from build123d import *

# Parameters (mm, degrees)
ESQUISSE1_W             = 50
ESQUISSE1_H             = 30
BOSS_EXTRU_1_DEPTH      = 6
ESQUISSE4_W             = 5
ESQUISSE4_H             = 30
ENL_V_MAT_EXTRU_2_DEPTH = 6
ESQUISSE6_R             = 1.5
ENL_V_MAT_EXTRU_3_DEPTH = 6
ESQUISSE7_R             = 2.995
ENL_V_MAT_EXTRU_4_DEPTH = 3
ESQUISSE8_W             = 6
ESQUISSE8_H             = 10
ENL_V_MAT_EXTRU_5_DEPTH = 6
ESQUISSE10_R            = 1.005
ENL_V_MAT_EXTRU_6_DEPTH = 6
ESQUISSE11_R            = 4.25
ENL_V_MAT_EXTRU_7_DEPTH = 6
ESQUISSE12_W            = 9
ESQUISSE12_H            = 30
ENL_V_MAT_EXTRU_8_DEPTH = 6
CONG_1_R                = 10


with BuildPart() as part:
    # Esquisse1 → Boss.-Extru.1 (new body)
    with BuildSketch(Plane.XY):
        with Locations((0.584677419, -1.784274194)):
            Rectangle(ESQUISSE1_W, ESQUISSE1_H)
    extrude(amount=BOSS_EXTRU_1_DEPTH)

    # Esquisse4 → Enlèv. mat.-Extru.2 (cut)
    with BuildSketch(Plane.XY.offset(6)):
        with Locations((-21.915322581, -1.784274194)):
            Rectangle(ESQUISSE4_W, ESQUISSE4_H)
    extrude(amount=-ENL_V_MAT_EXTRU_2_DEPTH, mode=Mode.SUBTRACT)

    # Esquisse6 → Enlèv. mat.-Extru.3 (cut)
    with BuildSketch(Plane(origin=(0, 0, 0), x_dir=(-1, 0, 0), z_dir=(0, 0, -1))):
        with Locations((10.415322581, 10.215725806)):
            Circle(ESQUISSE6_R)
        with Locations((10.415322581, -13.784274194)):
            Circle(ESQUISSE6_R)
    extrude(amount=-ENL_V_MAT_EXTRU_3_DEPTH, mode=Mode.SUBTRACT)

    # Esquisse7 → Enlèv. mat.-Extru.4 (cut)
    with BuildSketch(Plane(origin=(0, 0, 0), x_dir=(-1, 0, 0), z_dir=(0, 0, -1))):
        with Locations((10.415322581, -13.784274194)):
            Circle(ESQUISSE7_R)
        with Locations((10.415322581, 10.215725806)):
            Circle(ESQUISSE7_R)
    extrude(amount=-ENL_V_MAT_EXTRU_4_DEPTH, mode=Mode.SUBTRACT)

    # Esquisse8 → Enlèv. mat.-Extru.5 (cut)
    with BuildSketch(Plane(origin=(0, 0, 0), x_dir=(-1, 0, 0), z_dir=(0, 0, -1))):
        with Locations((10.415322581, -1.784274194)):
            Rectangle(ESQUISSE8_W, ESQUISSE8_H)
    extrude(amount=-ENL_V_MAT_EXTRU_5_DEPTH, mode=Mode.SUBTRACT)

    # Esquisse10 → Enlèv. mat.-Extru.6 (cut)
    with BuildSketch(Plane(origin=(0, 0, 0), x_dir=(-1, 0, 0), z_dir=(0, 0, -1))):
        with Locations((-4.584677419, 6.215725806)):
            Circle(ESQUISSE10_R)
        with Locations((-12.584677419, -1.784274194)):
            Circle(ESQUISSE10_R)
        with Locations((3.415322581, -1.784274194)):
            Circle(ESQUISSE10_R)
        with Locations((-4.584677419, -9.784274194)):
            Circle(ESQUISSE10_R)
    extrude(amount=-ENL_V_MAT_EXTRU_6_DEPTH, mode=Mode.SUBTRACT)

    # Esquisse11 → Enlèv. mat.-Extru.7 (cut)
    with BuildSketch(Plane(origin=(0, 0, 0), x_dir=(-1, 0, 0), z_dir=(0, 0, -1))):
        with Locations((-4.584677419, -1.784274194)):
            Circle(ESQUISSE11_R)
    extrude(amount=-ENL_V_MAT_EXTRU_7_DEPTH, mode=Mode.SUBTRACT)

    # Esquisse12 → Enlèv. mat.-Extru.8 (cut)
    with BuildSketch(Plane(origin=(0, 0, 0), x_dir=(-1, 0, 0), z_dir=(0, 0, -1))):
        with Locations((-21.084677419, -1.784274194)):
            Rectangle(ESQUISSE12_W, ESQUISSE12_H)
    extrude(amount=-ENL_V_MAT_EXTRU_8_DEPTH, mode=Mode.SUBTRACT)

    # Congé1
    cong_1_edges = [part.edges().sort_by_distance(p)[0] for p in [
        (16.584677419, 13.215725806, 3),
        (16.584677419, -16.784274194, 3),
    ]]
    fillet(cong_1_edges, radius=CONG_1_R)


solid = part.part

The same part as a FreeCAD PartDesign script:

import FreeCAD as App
import Part
import Sketcher
from FreeCAD import Vector


def edges_at(feature, points):
    """Names of the edges that pass closest to the given points."""
    edges = feature.Shape.Edges
    near = lambda p: min(range(len(edges)), key=lambda i: edges[i].distToShape(Part.Vertex(*p))[0])
    return sorted({f"Edge{near(p) + 1}" for p in points})

doc = App.newDocument("Part")
params = doc.addObject("Spreadsheet::Sheet", "Params")
for row, (alias, value) in enumerate([
    ("sketch1_width", "50 mm"),
    ("sketch1_height", "30 mm"),
    ("pad1_length", "6 mm"),
    ("sketch2_width", "5 mm"),
    ("sketch2_height", "30 mm"),
    ("pocket1_length", "6 mm"),
    ("sketch3_diameter", "3 mm"),
    ("pocket2_length", "6 mm"),
    ("sketch4_diameter", "5.99 mm"),
    ("pocket3_length", "3 mm"),
    ("sketch5_width", "6 mm"),
    ("sketch5_height", "10 mm"),
    ("pocket4_length", "6 mm"),
    ("sketch6_diameter", "2.01 mm"),
    ("pocket5_length", "6 mm"),
    ("sketch7_diameter", "8.5 mm"),
    ("pocket6_length", "6 mm"),
    ("sketch8_width", "9 mm"),
    ("sketch8_height", "30 mm"),
    ("pocket7_length", "6 mm"),
    ("fillet_radius", "10 mm"),
], start=1):
    params.set(f"A{row}", alias)
    params.set(f"B{row}", "=" + value)
    params.setAlias(f"B{row}", alias)

body = doc.addObject("PartDesign::Body", "Body")

sketch1 = body.newObject("Sketcher::SketchObject", "Sketch")
sketch1.AttachmentSupport = (doc.getObject("XY_Plane"), [""])
sketch1.MapMode = "FlatFace"
sketch1.addGeometry(Part.LineSegment(Vector(-24.415323, 13.215726, 0), Vector(-24.415323, -16.784274, 0)), False)
sketch1.addGeometry(Part.LineSegment(Vector(-24.415323, -16.784274, 0), Vector(25.584677, -16.784274, 0)), False)
sketch1.addGeometry(Part.LineSegment(Vector(25.584677, -16.784274, 0), Vector(25.584677, 13.215726, 0)), False)
sketch1.addGeometry(Part.LineSegment(Vector(25.584677, 13.215726, 0), Vector(-24.415323, 13.215726, 0)), False)
sketch1.addConstraint(Sketcher.Constraint("Coincident", 0, 2, 1, 1))
sketch1.addConstraint(Sketcher.Constraint("Coincident", 1, 2, 2, 1))
sketch1.addConstraint(Sketcher.Constraint("Coincident", 2, 2, 3, 1))
sketch1.addConstraint(Sketcher.Constraint("Coincident", 3, 2, 0, 1))
sketch1.addConstraint(Sketcher.Constraint("Vertical", 0))
sketch1.addConstraint(Sketcher.Constraint("Horizontal", 1))
sketch1.addConstraint(Sketcher.Constraint("Vertical", 2))
sketch1.addConstraint(Sketcher.Constraint("Horizontal", 3))
sketch1.addConstraint(Sketcher.Constraint("DistanceX", 1, 1, 1, 2, 50.0))
sketch1.addConstraint(Sketcher.Constraint("DistanceY", 0, 2, 0, 1, 30.0))
sketch1.addConstraint(Sketcher.Constraint("DistanceX", 0, 2, -1, 1, 24.415323))
sketch1.addConstraint(Sketcher.Constraint("DistanceY", 0, 2, -1, 1, 16.784274))
sketch1.setExpression("Constraints[8]", "Params.sketch1_width")
sketch1.setExpression("Constraints[9]", "Params.sketch1_height")
pad1 = body.newObject("PartDesign::Pad", "Pad")
pad1.Profile = sketch1
pad1.setExpression("Length", "Params.pad1_length")

sketch2 = body.newObject("Sketcher::SketchObject", "Sketch001")
sketch2.AttachmentSupport = (doc.getObject("XY_Plane"), [""])
sketch2.MapMode = "FlatFace"
sketch2.AttachmentOffset = App.Placement(Vector(0, 0, 6), App.Rotation())
sketch2.addGeometry(Part.LineSegment(Vector(-24.415323, 13.215726, 0), Vector(-24.415323, -16.784274, 0)), False)
sketch2.addGeometry(Part.LineSegment(Vector(-24.415323, -16.784274, 0), Vector(-19.415323, -16.784274, 0)), False)
sketch2.addGeometry(Part.LineSegment(Vector(-19.415323, -16.784274, 0), Vector(-19.415323, 13.215726, 0)), False)
sketch2.addGeometry(Part.LineSegment(Vector(-19.415323, 13.215726, 0), Vector(-24.415323, 13.215726, 0)), False)
sketch2.addConstraint(Sketcher.Constraint("Coincident", 0, 2, 1, 1))
sketch2.addConstraint(Sketcher.Constraint("Coincident", 1, 2, 2, 1))
sketch2.addConstraint(Sketcher.Constraint("Coincident", 2, 2, 3, 1))
sketch2.addConstraint(Sketcher.Constraint("Coincident", 3, 2, 0, 1))
sketch2.addConstraint(Sketcher.Constraint("Vertical", 0))
sketch2.addConstraint(Sketcher.Constraint("Horizontal", 1))
sketch2.addConstraint(Sketcher.Constraint("Vertical", 2))
sketch2.addConstraint(Sketcher.Constraint("Horizontal", 3))
sketch2.addConstraint(Sketcher.Constraint("DistanceX", 1, 1, 1, 2, 5.0))
sketch2.addConstraint(Sketcher.Constraint("DistanceY", 0, 2, 0, 1, 30.0))
sketch2.addConstraint(Sketcher.Constraint("DistanceX", 0, 2, -1, 1, 24.415323))
sketch2.addConstraint(Sketcher.Constraint("DistanceY", 0, 2, -1, 1, 16.784274))
sketch2.setExpression("Constraints[8]", "Params.sketch2_width")
sketch2.setExpression("Constraints[9]", "Params.sketch2_height")
pocket1 = body.newObject("PartDesign::Pocket", "Pocket")
pocket1.Profile = sketch2
pocket1.setExpression("Length", "Params.pocket1_length")

sketch3 = body.newObject("Sketcher::SketchObject", "Sketch002")
sketch3.AttachmentSupport = (doc.getObject("XY_Plane"), [""])
sketch3.MapMode = "FlatFace"
sketch3.addGeometry(Part.Circle(Vector(-10.415323, 10.215726, 0), Vector(0, 0, 1), 1.5), False)
sketch3.addGeometry(Part.Circle(Vector(-10.415323, -13.784274, 0), Vector(0, 0, 1), 1.5), False)
sketch3.addConstraint(Sketcher.Constraint("Equal", 0, 1))
sketch3.addConstraint(Sketcher.Constraint("Vertical", 0, 3, 1, 3))
sketch3.addConstraint(Sketcher.Constraint("Diameter", 0, 3.0))
sketch3.addConstraint(Sketcher.Constraint("DistanceY", 1, 3, 0, 3, 24.0))
sketch3.addConstraint(Sketcher.Constraint("DistanceX", 0, 3, -1, 1, 10.415323))
sketch3.addConstraint(Sketcher.Constraint("DistanceY", -1, 1, 0, 3, 10.215726))
sketch3.setExpression("Constraints[2]", "Params.sketch3_diameter")
pocket2 = body.newObject("PartDesign::Pocket", "Pocket001")
pocket2.Profile = sketch3
pocket2.setExpression("Length", "Params.pocket2_length")
pocket2.Reversed = True

sketch4 = body.newObject("Sketcher::SketchObject", "Sketch003")
sketch4.AttachmentSupport = (doc.getObject("XY_Plane"), [""])
sketch4.MapMode = "FlatFace"
sketch4.addGeometry(Part.Circle(Vector(-10.415323, -13.784274, 0), Vector(0, 0, 1), 2.995), False)
sketch4.addGeometry(Part.Circle(Vector(-10.415323, 10.215726, 0), Vector(0, 0, 1), 2.995), False)
sketch4.addConstraint(Sketcher.Constraint("Equal", 0, 1))
sketch4.addConstraint(Sketcher.Constraint("Vertical", 0, 3, 1, 3))
sketch4.addConstraint(Sketcher.Constraint("Diameter", 0, 5.99))
sketch4.addConstraint(Sketcher.Constraint("DistanceY", 0, 3, 1, 3, 24.0))
sketch4.addConstraint(Sketcher.Constraint("DistanceX", 0, 3, -1, 1, 10.415323))
sketch4.addConstraint(Sketcher.Constraint("DistanceY", 0, 3, -1, 1, 13.784274))
sketch4.setExpression("Constraints[2]", "Params.sketch4_diameter")
pocket3 = body.newObject("PartDesign::Pocket", "Pocket002")
pocket3.Profile = sketch4
pocket3.setExpression("Length", "Params.pocket3_length")
pocket3.Reversed = True

sketch5 = body.newObject("Sketcher::SketchObject", "Sketch004")
sketch5.AttachmentSupport = (doc.getObject("XY_Plane"), [""])
sketch5.MapMode = "FlatFace"
sketch5.addGeometry(Part.LineSegment(Vector(-7.415323, 3.215726, 0), Vector(-7.415323, -6.784274, 0)), False)
sketch5.addGeometry(Part.LineSegment(Vector(-7.415323, -6.784274, 0), Vector(-13.415323, -6.784274, 0)), False)
sketch5.addGeometry(Part.LineSegment(Vector(-13.415323, -6.784274, 0), Vector(-13.415323, 3.215726, 0)), False)
sketch5.addGeometry(Part.LineSegment(Vector(-13.415323, 3.215726, 0), Vector(-7.415323, 3.215726, 0)), False)
sketch5.addConstraint(Sketcher.Constraint("Coincident", 0, 2, 1, 1))
sketch5.addConstraint(Sketcher.Constraint("Coincident", 1, 2, 2, 1))
sketch5.addConstraint(Sketcher.Constraint("Coincident", 2, 2, 3, 1))
sketch5.addConstraint(Sketcher.Constraint("Coincident", 3, 2, 0, 1))
sketch5.addConstraint(Sketcher.Constraint("Vertical", 0))
sketch5.addConstraint(Sketcher.Constraint("Horizontal", 1))
sketch5.addConstraint(Sketcher.Constraint("Vertical", 2))
sketch5.addConstraint(Sketcher.Constraint("Horizontal", 3))
sketch5.addConstraint(Sketcher.Constraint("DistanceX", 1, 2, 1, 1, 6.0))
sketch5.addConstraint(Sketcher.Constraint("DistanceY", 0, 2, 0, 1, 10.0))
sketch5.addConstraint(Sketcher.Constraint("DistanceX", 0, 2, -1, 1, 7.415323))
sketch5.addConstraint(Sketcher.Constraint("DistanceY", 0, 2, -1, 1, 6.784274))
sketch5.setExpression("Constraints[8]", "Params.sketch5_width")
sketch5.setExpression("Constraints[9]", "Params.sketch5_height")
pocket4 = body.newObject("PartDesign::Pocket", "Pocket003")
pocket4.Profile = sketch5
pocket4.setExpression("Length", "Params.pocket4_length")
pocket4.Reversed = True

sketch6 = body.newObject("Sketcher::SketchObject", "Sketch005")
sketch6.AttachmentSupport = (doc.getObject("XY_Plane"), [""])
sketch6.MapMode = "FlatFace"
sketch6.addGeometry(Part.Circle(Vector(4.584677, 6.215726, 0), Vector(0, 0, 1), 1.005), False)
sketch6.addGeometry(Part.Circle(Vector(12.584677, -1.784274, 0), Vector(0, 0, 1), 1.005), False)
sketch6.addGeometry(Part.Circle(Vector(-3.415323, -1.784274, 0), Vector(0, 0, 1), 1.005), False)
sketch6.addGeometry(Part.Circle(Vector(4.584677, -9.784274, 0), Vector(0, 0, 1), 1.005), False)
sketch6.addConstraint(Sketcher.Constraint("Equal", 0, 1))
sketch6.addConstraint(Sketcher.Constraint("Equal", 1, 2))
sketch6.addConstraint(Sketcher.Constraint("Equal", 2, 3))
sketch6.addConstraint(Sketcher.Constraint("Horizontal", 1, 3, 2, 3))
sketch6.addConstraint(Sketcher.Constraint("Vertical", 0, 3, 3, 3))
sketch6.addConstraint(Sketcher.Constraint("Diameter", 0, 2.01))
sketch6.addConstraint(Sketcher.Constraint("DistanceX", 0, 3, 1, 3, 8.0))
sketch6.addConstraint(Sketcher.Constraint("DistanceY", 1, 3, 0, 3, 8.0))
sketch6.addConstraint(Sketcher.Constraint("DistanceX", 2, 3, 0, 3, 8.0))
sketch6.addConstraint(Sketcher.Constraint("DistanceY", 3, 3, 1, 3, 8.0))
sketch6.addConstraint(Sketcher.Constraint("DistanceX", -1, 1, 0, 3, 4.584677))
sketch6.addConstraint(Sketcher.Constraint("DistanceY", -1, 1, 0, 3, 6.215726))
sketch6.setExpression("Constraints[5]", "Params.sketch6_diameter")
pocket5 = body.newObject("PartDesign::Pocket", "Pocket004")
pocket5.Profile = sketch6
pocket5.setExpression("Length", "Params.pocket5_length")
pocket5.Reversed = True

sketch7 = body.newObject("Sketcher::SketchObject", "Sketch006")
sketch7.AttachmentSupport = (doc.getObject("XY_Plane"), [""])
sketch7.MapMode = "FlatFace"
sketch7.addGeometry(Part.Circle(Vector(4.584677, -1.784274, 0), Vector(0, 0, 1), 4.25), False)
sketch7.addConstraint(Sketcher.Constraint("Diameter", 0, 8.5))
sketch7.addConstraint(Sketcher.Constraint("DistanceX", -1, 1, 0, 3, 4.584677))
sketch7.addConstraint(Sketcher.Constraint("DistanceY", 0, 3, -1, 1, 1.784274))
sketch7.setExpression("Constraints[0]", "Params.sketch7_diameter")
pocket6 = body.newObject("PartDesign::Pocket", "Pocket005")
pocket6.Profile = sketch7
pocket6.setExpression("Length", "Params.pocket6_length")
pocket6.Reversed = True

sketch8 = body.newObject("Sketcher::SketchObject", "Sketch007")
sketch8.AttachmentSupport = (doc.getObject("XY_Plane"), [""])
sketch8.MapMode = "FlatFace"
sketch8.addGeometry(Part.LineSegment(Vector(25.584677, 13.215726, 0), Vector(25.584677, -16.784274, 0)), False)
sketch8.addGeometry(Part.LineSegment(Vector(25.584677, -16.784274, 0), Vector(16.584677, -16.784274, 0)), False)
sketch8.addGeometry(Part.LineSegment(Vector(16.584677, -16.784274, 0), Vector(16.584677, 13.215726, 0)), False)
sketch8.addGeometry(Part.LineSegment(Vector(16.584677, 13.215726, 0), Vector(25.584677, 13.215726, 0)), False)
sketch8.addConstraint(Sketcher.Constraint("Coincident", 0, 2, 1, 1))
sketch8.addConstraint(Sketcher.Constraint("Coincident", 1, 2, 2, 1))
sketch8.addConstraint(Sketcher.Constraint("Coincident", 2, 2, 3, 1))
sketch8.addConstraint(Sketcher.Constraint("Coincident", 3, 2, 0, 1))
sketch8.addConstraint(Sketcher.Constraint("Vertical", 0))
sketch8.addConstraint(Sketcher.Constraint("Horizontal", 1))
sketch8.addConstraint(Sketcher.Constraint("Vertical", 2))
sketch8.addConstraint(Sketcher.Constraint("Horizontal", 3))
sketch8.addConstraint(Sketcher.Constraint("DistanceX", 1, 2, 1, 1, 9.0))
sketch8.addConstraint(Sketcher.Constraint("DistanceY", 0, 2, 0, 1, 30.0))
sketch8.addConstraint(Sketcher.Constraint("DistanceX", -1, 1, 0, 2, 25.584677))
sketch8.addConstraint(Sketcher.Constraint("DistanceY", 0, 2, -1, 1, 16.784274))
sketch8.setExpression("Constraints[8]", "Params.sketch8_width")
sketch8.setExpression("Constraints[9]", "Params.sketch8_height")
pocket7 = body.newObject("PartDesign::Pocket", "Pocket006")
pocket7.Profile = sketch8
pocket7.setExpression("Length", "Params.pocket7_length")
pocket7.Reversed = True
doc.recompute()

fillet = body.newObject("PartDesign::Fillet", "Fillet")
fillet.Base = (pocket7, edges_at(pocket7, [(16.585, 13.216, 3), (16.585, -16.784, 3)]))
fillet.setExpression("Radius", "Params.fillet_radius")

doc.recompute()
